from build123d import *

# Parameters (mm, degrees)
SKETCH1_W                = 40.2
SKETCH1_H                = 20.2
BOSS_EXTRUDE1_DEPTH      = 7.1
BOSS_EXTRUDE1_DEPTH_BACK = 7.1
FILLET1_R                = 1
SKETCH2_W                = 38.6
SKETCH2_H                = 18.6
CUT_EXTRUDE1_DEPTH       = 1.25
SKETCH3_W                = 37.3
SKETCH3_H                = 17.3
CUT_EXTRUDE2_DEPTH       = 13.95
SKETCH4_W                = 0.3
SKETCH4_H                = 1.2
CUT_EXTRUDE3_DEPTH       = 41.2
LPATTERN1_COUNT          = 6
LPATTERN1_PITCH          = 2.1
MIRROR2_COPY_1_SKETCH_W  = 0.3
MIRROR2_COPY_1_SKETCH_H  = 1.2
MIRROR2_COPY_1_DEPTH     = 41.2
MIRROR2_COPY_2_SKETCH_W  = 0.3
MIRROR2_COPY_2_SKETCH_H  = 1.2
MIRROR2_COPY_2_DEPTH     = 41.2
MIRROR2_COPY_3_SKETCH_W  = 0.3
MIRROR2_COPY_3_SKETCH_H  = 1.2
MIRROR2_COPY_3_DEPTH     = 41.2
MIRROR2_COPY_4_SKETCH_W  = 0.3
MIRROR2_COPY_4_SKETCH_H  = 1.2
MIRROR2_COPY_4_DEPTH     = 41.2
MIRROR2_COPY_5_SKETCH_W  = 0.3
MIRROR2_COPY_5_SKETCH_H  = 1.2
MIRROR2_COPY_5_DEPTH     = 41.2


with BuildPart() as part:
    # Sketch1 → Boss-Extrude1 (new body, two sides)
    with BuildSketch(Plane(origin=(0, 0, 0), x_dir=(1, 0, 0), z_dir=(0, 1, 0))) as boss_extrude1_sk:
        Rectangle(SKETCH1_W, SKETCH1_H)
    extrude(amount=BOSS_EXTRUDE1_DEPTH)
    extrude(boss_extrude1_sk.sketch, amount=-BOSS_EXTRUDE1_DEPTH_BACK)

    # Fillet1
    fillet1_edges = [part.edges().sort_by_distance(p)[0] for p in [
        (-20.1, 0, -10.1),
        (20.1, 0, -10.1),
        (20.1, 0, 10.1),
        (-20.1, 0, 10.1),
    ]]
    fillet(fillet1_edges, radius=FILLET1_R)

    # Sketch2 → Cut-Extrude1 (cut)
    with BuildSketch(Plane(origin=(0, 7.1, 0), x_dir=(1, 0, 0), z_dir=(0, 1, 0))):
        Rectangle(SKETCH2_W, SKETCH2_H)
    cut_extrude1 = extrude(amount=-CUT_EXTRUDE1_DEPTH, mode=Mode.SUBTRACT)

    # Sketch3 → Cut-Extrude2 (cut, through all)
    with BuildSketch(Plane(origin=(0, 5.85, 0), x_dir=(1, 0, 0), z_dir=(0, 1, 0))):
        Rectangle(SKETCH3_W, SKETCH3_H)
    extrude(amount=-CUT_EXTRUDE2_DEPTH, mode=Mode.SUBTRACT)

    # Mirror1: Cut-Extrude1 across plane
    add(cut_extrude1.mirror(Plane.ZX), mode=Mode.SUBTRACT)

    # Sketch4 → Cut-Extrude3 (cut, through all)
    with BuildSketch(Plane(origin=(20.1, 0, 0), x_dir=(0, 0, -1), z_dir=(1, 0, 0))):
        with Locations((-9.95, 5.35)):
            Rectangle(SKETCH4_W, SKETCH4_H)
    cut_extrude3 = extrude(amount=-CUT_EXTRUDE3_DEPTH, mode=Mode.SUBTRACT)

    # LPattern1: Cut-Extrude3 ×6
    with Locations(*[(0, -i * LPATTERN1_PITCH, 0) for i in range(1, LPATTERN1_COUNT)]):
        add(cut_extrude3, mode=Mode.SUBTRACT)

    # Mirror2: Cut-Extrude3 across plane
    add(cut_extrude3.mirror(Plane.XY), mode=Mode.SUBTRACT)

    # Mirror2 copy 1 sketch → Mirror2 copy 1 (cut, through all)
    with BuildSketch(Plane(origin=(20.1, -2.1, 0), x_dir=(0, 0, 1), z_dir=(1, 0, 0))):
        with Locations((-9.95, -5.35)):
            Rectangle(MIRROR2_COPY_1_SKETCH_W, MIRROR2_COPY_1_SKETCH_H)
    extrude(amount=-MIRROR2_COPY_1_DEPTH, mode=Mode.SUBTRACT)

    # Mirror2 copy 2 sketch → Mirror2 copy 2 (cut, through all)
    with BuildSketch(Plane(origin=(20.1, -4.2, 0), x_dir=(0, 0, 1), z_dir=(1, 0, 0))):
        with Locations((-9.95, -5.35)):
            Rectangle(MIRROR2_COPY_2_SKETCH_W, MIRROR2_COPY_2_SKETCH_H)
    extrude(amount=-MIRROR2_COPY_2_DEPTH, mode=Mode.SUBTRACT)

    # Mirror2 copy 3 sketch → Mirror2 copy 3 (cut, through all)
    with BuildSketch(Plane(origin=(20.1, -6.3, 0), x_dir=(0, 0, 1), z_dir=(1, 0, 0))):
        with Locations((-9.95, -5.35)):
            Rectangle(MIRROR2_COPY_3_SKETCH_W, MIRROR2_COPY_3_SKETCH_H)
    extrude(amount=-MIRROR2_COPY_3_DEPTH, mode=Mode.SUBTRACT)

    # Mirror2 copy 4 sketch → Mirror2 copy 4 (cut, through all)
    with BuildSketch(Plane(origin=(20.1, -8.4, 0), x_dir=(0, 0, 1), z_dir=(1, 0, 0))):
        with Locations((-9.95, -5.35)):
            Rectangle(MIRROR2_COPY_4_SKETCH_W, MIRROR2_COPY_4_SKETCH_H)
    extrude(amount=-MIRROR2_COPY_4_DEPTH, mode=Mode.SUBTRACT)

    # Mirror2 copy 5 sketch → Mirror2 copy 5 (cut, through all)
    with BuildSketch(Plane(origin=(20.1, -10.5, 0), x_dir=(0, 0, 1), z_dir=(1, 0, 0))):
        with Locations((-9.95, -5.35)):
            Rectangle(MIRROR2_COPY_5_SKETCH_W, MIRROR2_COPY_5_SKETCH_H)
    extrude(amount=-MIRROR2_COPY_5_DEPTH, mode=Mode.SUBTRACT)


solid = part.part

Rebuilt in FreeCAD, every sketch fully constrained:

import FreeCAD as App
import Part
import Sketcher


def edges_at(feature, points):
    """Names of the edges that pass closest to the given points."""
    edges = feature.Shape.Edges
    near = lambda p: min(range(len(edges)), key=lambda i: edges[i].distToShape(Part.Vertex(*p))[0])
    return sorted({f"Edge{near(p) + 1}" for p in points})

doc = App.newDocument("Part")
body = doc.addObject("PartDesign::Body", "Body")

sketch1 = body.newObject("Sketcher::SketchObject", "Sketch")
sketch1.AttachmentSupport = (doc.getObject("XZ_Plane"), [""])
sketch1.MapMode = "FlatFace"
sketch1.addGeometry([
    Part.LineSegment(App.Vector(-20, -10, 0), App.Vector(-20, 10, 0)),
    Part.LineSegment(App.Vector(-20, 10, 0), App.Vector(20, 10, 0)),
    Part.LineSegment(App.Vector(20, 10, 0), App.Vector(20, -10, 0)),
    Part.LineSegment(App.Vector(20, -10, 0), App.Vector(-20, -10, 0)),
], False)
sketch1.addConstraint([
    Sketcher.Constraint("Coincident", 0, 2, 1, 1),
    Sketcher.Constraint("Coincident", 1, 2, 2, 1),
    Sketcher.Constraint("Coincident", 2, 2, 3, 1),
    Sketcher.Constraint("Coincident", 3, 2, 0, 1),
    Sketcher.Constraint("Vertical", 0),
    Sketcher.Constraint("Horizontal", 1),
    Sketcher.Constraint("Vertical", 2),
    Sketcher.Constraint("Horizontal", 3),
    Sketcher.Constraint("Symmetric", 0, 2, 2, 2, -1, 1),
    Sketcher.Constraint("DistanceX", 1, 1, 1, 2, 40.2),
    Sketcher.Constraint("DistanceY", 0, 1, 0, 2, 20.2),
])
pad1 = body.newObject("PartDesign::Pad", "Pad")
pad1.Profile = sketch1
pad1.Type = "TwoLengths"
pad1.Length = 7.1
pad1.Length2 = 7.1
pad1.Reversed = True
doc.recompute()

fillet = body.newObject("PartDesign::Fillet", "Fillet")
fillet.Base = (pad1, edges_at(pad1, [
    (-20.1, 0, -10.1),
    (20.1, 0, -10.1),
    (20.1, 0, 10.1),
    (-20.1, 0, 10.1),
]))
fillet.Radius = 1

sketch2 = body.newObject("Sketcher::SketchObject", "Sketch001")
sketch2.AttachmentSupport = (doc.getObject("XZ_Plane"), [""])
sketch2.MapMode = "FlatFace"
sketch2.AttachmentOffset = App.Placement(App.Vector(0, 0, -7.1), App.Rotation())
sketch2.addGeometry([
    Part.LineSegment(App.Vector(-19, -9, 0), App.Vector(-19, 9, 0)),
    Part.LineSegment(App.Vector(-19, 9, 0), App.Vector(19, 9, 0)),
    Part.LineSegment(App.Vector(19, 9, 0), App.Vector(19, -9, 0)),
    Part.LineSegment(App.Vector(19, -9, 0), App.Vector(-19, -9, 0)),
], False)
sketch2.addConstraint([
    Sketcher.Constraint("Coincident", 0, 2, 1, 1),
    Sketcher.Constraint("Coincident", 1, 2, 2, 1),
    Sketcher.Constraint("Coincident", 2, 2, 3, 1),
    Sketcher.Constraint("Coincident", 3, 2, 0, 1),
    Sketcher.Constraint("Vertical", 0),
    Sketcher.Constraint("Horizontal", 1),
    Sketcher.Constraint("Vertical", 2),
    Sketcher.Constraint("Horizontal", 3),
    Sketcher.Constraint("Symmetric", 0, 2, 2, 2, -1, 1),
    Sketcher.Constraint("DistanceX", 1, 1, 1, 2, 38.6),
    Sketcher.Constraint("DistanceY", 0, 1, 0, 2, 18.6),
])
pocket1 = body.newObject("PartDesign::Pocket", "Pocket")
pocket1.Profile = sketch2
pocket1.Length = 1.25
pocket1.Reversed = True

sketch3 = body.newObject("Sketcher::SketchObject", "Sketch002")
sketch3.AttachmentSupport = (doc.getObject("XZ_Plane"), [""])
sketch3.MapMode = "FlatFace"
sketch3.AttachmentOffset = App.Placement(App.Vector(0, 0, -5.85), App.Rotation())
sketch3.addGeometry([
    Part.LineSegment(App.Vector(-19, -9, 0), App.Vector(-19, 9, 0)),
    Part.LineSegment(App.Vector(-19, 9, 0), App.Vector(19, 9, 0)),
    Part.LineSegment(App.Vector(19, 9, 0), App.Vector(19, -9, 0)),
    Part.LineSegment(App.Vector(19, -9, 0), App.Vector(-19, -9, 0)),
], False)
sketch3.addConstraint([
    Sketcher.Constraint("Coincident", 0, 2, 1, 1),
    Sketcher.Constraint("Coincident", 1, 2, 2, 1),
    Sketcher.Constraint("Coincident", 2, 2, 3, 1),
    Sketcher.Constraint("Coincident", 3, 2, 0, 1),
    Sketcher.Constraint("Vertical", 0),
    Sketcher.Constraint("Horizontal", 1),
    Sketcher.Constraint("Vertical", 2),
    Sketcher.Constraint("Horizontal", 3),
    Sketcher.Constraint("Symmetric", 0, 2, 2, 2, -1, 1),
    Sketcher.Constraint("DistanceX", 1, 1, 1, 2, 37.3),
    Sketcher.Constraint("DistanceY", 0, 1, 0, 2, 17.3),
])
pocket2 = body.newObject("PartDesign::Pocket", "Pocket001")
pocket2.Profile = sketch3
pocket2.Type = "ThroughAll"
pocket2.Reversed = True
doc.recompute()

mirrored = body.newObject("PartDesign::Mirrored", "Mirrored")
mirrored.Originals = [pocket1]
mirrored.MirrorPlane = (doc.getObject("XZ_Plane"), [""])
body.Tip = mirrored

sketch4 = body.newObject("Sketcher::SketchObject", "Sketch003")
sketch4.AttachmentSupport = (doc.getObject("YZ_Plane"), [""])
sketch4.MapMode = "FlatFace"
sketch4.AttachmentOffset = App.Placement(App.Vector(0, 0, 20.1), App.Rotation())
sketch4.addGeometry([
    Part.LineSegment(App.Vector(5.95, 10.1, 0), App.Vector(4.75, 10.1, 0)),
    Part.LineSegment(App.Vector(4.75, 10.1, 0), App.Vector(4.75, 9.8, 0)),
    Part.LineSegment(App.Vector(4.75, 9.8, 0), App.Vector(5.95, 9.8, 0)),
    Part.LineSegment(App.Vector(5.95, 9.8, 0), App.Vector(5.95, 10.1, 0)),
], False)
sketch4.addConstraint([
    Sketcher.Constraint("Coincident", 0, 2, 1, 1),
    Sketcher.Constraint("Coincident", 1, 2, 2, 1),
    Sketcher.Constraint("Coincident", 2, 2, 3, 1),
    Sketcher.Constraint("Coincident", 3, 2, 0, 1),
    Sketcher.Constraint("Horizontal", 0),
    Sketcher.Constraint("Vertical", 1),
    Sketcher.Constraint("Horizontal", 2),
    Sketcher.Constraint("Vertical", 3),
    Sketcher.Constraint("DistanceX", 0, 2, 0, 1, 1.2),
    Sketcher.Constraint("DistanceY", 1, 2, 1, 1, 0.3),
    Sketcher.Constraint("DistanceY", -1, 1, 0, 2, 10.1),
    Sketcher.Constraint("DistanceX", -1, 1, 0, 2, 4.75),
])
pocket3 = body.newObject("PartDesign::Pocket", "Pocket002")
pocket3.Profile = sketch4
pocket3.Type = "ThroughAll"
doc.recompute()

linearpattern = body.newObject("PartDesign::LinearPattern", "LinearPattern")
linearpattern.Originals = [pocket3]
linearpattern.Direction = (doc.getObject("Y_Axis"), [""])
linearpattern.Mode = "offset"
linearpattern.Offset = 2.1
linearpattern.Occurrences = 6
linearpattern.Reversed = True
body.Tip = linearpattern
doc.recompute()

mirrored2 = body.newObject("PartDesign::Mirrored", "Mirrored001")
mirrored2.Originals = [pocket3]
mirrored2.MirrorPlane = (doc.getObject("XY_Plane"), [""])
body.Tip = mirrored2

sketch5 = body.newObject("Sketcher::SketchObject", "Sketch004")
sketch5.AttachmentSupport = (doc.getObject("YZ_Plane"), [""])
sketch5.MapMode = "FlatFace"
sketch5.AttachmentOffset = App.Placement(App.Vector(0, 0, 20.1), App.Rotation())
sketch5.addGeometry([
    Part.LineSegment(App.Vector(2.65, -10.1, 0), App.Vector(3.85, -10.1, 0)),
    Part.LineSegment(App.Vector(3.85, -10.1, 0), App.Vector(3.85, -9.8, 0)),
    Part.LineSegment(App.Vector(3.85, -9.8, 0), App.Vector(2.65, -9.8, 0)),
    Part.LineSegment(App.Vector(2.65, -9.8, 0), App.Vector(2.65, -10.1, 0)),
], False)
sketch5.addConstraint([
    Sketcher.Constraint("Coincident", 0, 2, 1, 1),
    Sketcher.Constraint("Coincident", 1, 2, 2, 1),
    Sketcher.Constraint("Coincident", 2, 2, 3, 1),
    Sketcher.Constraint("Coincident", 3, 2, 0, 1),
    Sketcher.Constraint("Horizontal", 0),
    Sketcher.Constraint("Vertical", 1),
    Sketcher.Constraint("Horizontal", 2),
    Sketcher.Constraint("Vertical", 3),
    Sketcher.Constraint("DistanceX", 0, 1, 0, 2, 1.2),
    Sketcher.Constraint("DistanceY", 1, 1, 1, 2, 0.3),
    Sketcher.Constraint("DistanceY", 0, 2, -1, 1, 10.1),
    Sketcher.Constraint("DistanceX", -1, 1, 0, 2, 3.85),
])
pocket4 = body.newObject("PartDesign::Pocket", "Pocket003")
pocket4.Profile = sketch5
pocket4.Type = "ThroughAll"

sketch6 = body.newObject("Sketcher::SketchObject", "Sketch005")
sketch6.AttachmentSupport = (doc.getObject("YZ_Plane"), [""])
sketch6.MapMode = "FlatFace"
sketch6.AttachmentOffset = App.Placement(App.Vector(0, 0, 20.1), App.Rotation())
sketch6.addGeometry([
    Part.LineSegment(App.Vector(0.55, -10.1, 0), App.Vector(1.75, -10.1, 0)),
    Part.LineSegment(App.Vector(1.75, -10.1, 0), App.Vector(1.75, -9.8, 0)),
    Part.LineSegment(App.Vector(1.75, -9.8, 0), App.Vector(0.55, -9.8, 0)),
    Part.LineSegment(App.Vector(0.55, -9.8, 0), App.Vector(0.55, -10.1, 0)),
], False)
sketch6.addConstraint([
    Sketcher.Constraint("Coincident", 0, 2, 1, 1),
    Sketcher.Constraint("Coincident", 1, 2, 2, 1),
    Sketcher.Constraint("Coincident", 2, 2, 3, 1),
    Sketcher.Constraint("Coincident", 3, 2, 0, 1),
    Sketcher.Constraint("Horizontal", 0),
    Sketcher.Constraint("Vertical", 1),
    Sketcher.Constraint("Horizontal", 2),
    Sketcher.Constraint("Vertical", 3),
    Sketcher.Constraint("DistanceX", 0, 1, 0, 2, 1.2),
    Sketcher.Constraint("DistanceY", 1, 1, 1, 2, 0.3),
    Sketcher.Constraint("DistanceY", 0, 2, -1, 1, 10.1),
    Sketcher.Constraint("DistanceX", -1, 1, 0, 2, 1.75),
])
pocket5 = body.newObject("PartDesign::Pocket", "Pocket004")
pocket5.Profile = sketch6
pocket5.Type = "ThroughAll"

sketch7 = body.newObject("Sketcher::SketchObject", "Sketch006")
sketch7.AttachmentSupport = (doc.getObject("YZ_Plane"), [""])
sketch7.MapMode = "FlatFace"
sketch7.AttachmentOffset = App.Placement(App.Vector(0, 0, 20.1), App.Rotation())
sketch7.addGeometry([
    Part.LineSegment(App.Vector(-1.55, -10.1, 0), App.Vector(-0.35, -10.1, 0)),
    Part.LineSegment(App.Vector(-0.35, -10.1, 0), App.Vector(-0.35, -9.8, 0)),
    Part.LineSegment(App.Vector(-0.35, -9.8, 0), App.Vector(-1.55, -9.8, 0)),
    Part.LineSegment(App.Vector(-1.55, -9.8, 0), App.Vector(-1.55, -10.1, 0)),
], False)
sketch7.addConstraint([
    Sketcher.Constraint("Coincident", 0, 2, 1, 1),
    Sketcher.Constraint("Coincident", 1, 2, 2, 1),
    Sketcher.Constraint("Coincident", 2, 2, 3, 1),
    Sketcher.Constraint("Coincident", 3, 2, 0, 1),
    Sketcher.Constraint("Horizontal", 0),
    Sketcher.Constraint("Vertical", 1),
    Sketcher.Constraint("Horizontal", 2),
    Sketcher.Constraint("Vertical", 3),
    Sketcher.Constraint("DistanceX", 0, 1, 0, 2, 1.2),
    Sketcher.Constraint("DistanceY", 1, 1, 1, 2, 0.3),
    Sketcher.Constraint("DistanceY", 0, 2, -1, 1, 10.1),
    Sketcher.Constraint("DistanceX", 0, 2, -1, 1, 0.35),
])
pocket6 = body.newObject("PartDesign::Pocket", "Pocket005")
pocket6.Profile = sketch7
pocket6.Type = "ThroughAll"

sketch8 = body.newObject("Sketcher::SketchObject", "Sketch007")
sketch8.AttachmentSupport = (doc.getObject("YZ_Plane"), [""])
sketch8.MapMode = "FlatFace"
sketch8.AttachmentOffset = App.Placement(App.Vector(0, 0, 20.1), App.Rotation())
sketch8.addGeometry([
    Part.LineSegment(App.Vector(-3.65, -10.1, 0), App.Vector(-2.45, -10.1, 0)),
    Part.LineSegment(App.Vector(-2.45, -10.1, 0), App.Vector(-2.45, -9.8, 0)),
    Part.LineSegment(App.Vector(-2.45, -9.8, 0), App.Vector(-3.65, -9.8, 0)),
    Part.LineSegment(App.Vector(-3.65, -9.8, 0), App.Vector(-3.65, -10.1, 0)),
], False)
sketch8.addConstraint([
    Sketcher.Constraint("Coincident", 0, 2, 1, 1),
    Sketcher.Constraint("Coincident", 1, 2, 2, 1),
    Sketcher.Constraint("Coincident", 2, 2, 3, 1),
    Sketcher.Constraint("Coincident", 3, 2, 0, 1),
    Sketcher.Constraint("Horizontal", 0),
    Sketcher.Constraint("Vertical", 1),
    Sketcher.Constraint("Horizontal", 2),
    Sketcher.Constraint("Vertical", 3),
    Sketcher.Constraint("DistanceX", 0, 1, 0, 2, 1.2),
    Sketcher.Constraint("DistanceY", 1, 1, 1, 2, 0.3),
    Sketcher.Constraint("DistanceY", 0, 2, -1, 1, 10.1),
    Sketcher.Constraint("DistanceX", 0, 2, -1, 1, 2.45),
])
pocket7 = body.newObject("PartDesign::Pocket", "Pocket006")
pocket7.Profile = sketch8
pocket7.Type = "ThroughAll"

sketch9 = body.newObject("Sketcher::SketchObject", "Sketch008")
sketch9.AttachmentSupport = (doc.getObject("YZ_Plane"), [""])
sketch9.MapMode = "FlatFace"
sketch9.AttachmentOffset = App.Placement(App.Vector(0, 0, 20.1), App.Rotation())
sketch9.addGeometry([
    Part.LineSegment(App.Vector(-5.75, -10.1, 0), App.Vector(-4.55, -10.1, 0)),
    Part.LineSegment(App.Vector(-4.55, -10.1, 0), App.Vector(-4.55, -9.8, 0)),
    Part.LineSegment(App.Vector(-4.55, -9.8, 0), App.Vector(-5.75, -9.8, 0)),
    Part.LineSegment(App.Vector(-5.75, -9.8, 0), App.Vector(-5.75, -10.1, 0)),
], False)
sketch9.addConstraint([
    Sketcher.Constraint("Coincident", 0, 2, 1, 1),
    Sketcher.Constraint("Coincident", 1, 2, 2, 1),
    Sketcher.Constraint("Coincident", 2, 2, 3, 1),
    Sketcher.Constraint("Coincident", 3, 2, 0, 1),
    Sketcher.Constraint("Horizontal", 0),
    Sketcher.Constraint("Vertical", 1),
    Sketcher.Constraint("Horizontal", 2),
    Sketcher.Constraint("Vertical", 3),
    Sketcher.Constraint("DistanceX", 0, 1, 0, 2, 1.2),
    Sketcher.Constraint("DistanceY", 1, 1, 1, 2, 0.3),
    Sketcher.Constraint("DistanceY", 0, 2, -1, 1, 10.1),
    Sketcher.Constraint("DistanceX", 0, 2, -1, 1, 4.55),
])
pocket8 = body.newObject("PartDesign::Pocket", "Pocket007")
pocket8.Profile = sketch9
pocket8.Type = "ThroughAll"

doc.recompute()
